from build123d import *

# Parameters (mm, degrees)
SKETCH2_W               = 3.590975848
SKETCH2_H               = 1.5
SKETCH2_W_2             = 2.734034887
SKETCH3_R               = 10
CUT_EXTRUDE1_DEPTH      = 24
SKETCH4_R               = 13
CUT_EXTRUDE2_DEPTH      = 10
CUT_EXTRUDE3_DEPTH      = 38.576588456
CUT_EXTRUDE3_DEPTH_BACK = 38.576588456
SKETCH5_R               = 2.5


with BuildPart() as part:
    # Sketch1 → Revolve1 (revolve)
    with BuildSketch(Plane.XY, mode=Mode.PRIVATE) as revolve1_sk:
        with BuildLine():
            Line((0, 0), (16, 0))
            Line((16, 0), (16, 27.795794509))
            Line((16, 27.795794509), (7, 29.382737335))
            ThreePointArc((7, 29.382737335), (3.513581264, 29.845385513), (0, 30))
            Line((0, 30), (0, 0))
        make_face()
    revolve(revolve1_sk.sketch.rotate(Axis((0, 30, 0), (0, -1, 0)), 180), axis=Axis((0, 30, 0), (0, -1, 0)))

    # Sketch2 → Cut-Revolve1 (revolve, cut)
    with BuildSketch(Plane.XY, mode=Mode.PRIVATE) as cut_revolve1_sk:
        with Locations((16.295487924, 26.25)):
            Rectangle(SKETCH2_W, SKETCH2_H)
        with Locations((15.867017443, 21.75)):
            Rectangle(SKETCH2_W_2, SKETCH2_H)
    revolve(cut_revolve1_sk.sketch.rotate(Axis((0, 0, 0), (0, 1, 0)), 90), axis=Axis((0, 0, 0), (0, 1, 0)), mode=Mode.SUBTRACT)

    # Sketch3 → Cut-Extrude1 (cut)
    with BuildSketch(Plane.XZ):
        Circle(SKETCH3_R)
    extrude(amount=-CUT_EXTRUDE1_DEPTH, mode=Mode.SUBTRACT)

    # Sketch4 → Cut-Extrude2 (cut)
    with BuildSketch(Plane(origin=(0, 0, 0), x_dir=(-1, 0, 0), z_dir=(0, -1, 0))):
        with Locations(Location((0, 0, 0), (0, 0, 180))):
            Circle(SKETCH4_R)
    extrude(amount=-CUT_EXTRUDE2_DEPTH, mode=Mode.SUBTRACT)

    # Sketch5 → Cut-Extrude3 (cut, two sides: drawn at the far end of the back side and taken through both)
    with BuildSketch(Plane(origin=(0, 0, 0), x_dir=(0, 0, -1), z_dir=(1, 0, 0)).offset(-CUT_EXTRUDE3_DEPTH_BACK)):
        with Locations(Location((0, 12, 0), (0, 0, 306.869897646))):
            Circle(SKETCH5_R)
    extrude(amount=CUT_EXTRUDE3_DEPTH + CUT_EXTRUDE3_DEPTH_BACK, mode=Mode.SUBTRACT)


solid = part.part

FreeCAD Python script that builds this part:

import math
import FreeCAD as App
import Part
import Sketcher

V = App.Vector
Q = App.Units.Quantity

doc = App.newDocument("Part")
body = doc.addObject("PartDesign::Body", "Body")

# Sketch on XY plane
sketch1 = doc.addObject("Sketcher::SketchObject", "Sketch")
body.addObject(sketch1)
sketch1.AttachmentSupport = (doc.XY_Plane, [""])
sketch1.MapMode = "FlatFace"
sketch1.addGeometry([
    Part.LineSegment(V(0, 0, 0), V(16, 0, 0)),  # 0
    Part.LineSegment(V(16, 0, 0), V(16, 28, 0)),  # 1
    Part.LineSegment(V(16, 28, 0), V(7, 29, 0)),  # 2
    Part.ArcOfCircle(Part.Circle(V(0, -10, 0), V(0, 0, 1), 40), math.radians(79.92), math.radians(90)),  # 3
    Part.LineSegment(V(0, 30, 0), V(0, 0, 0)),  # 4
], False)
sketch1.addConstraint([
    Sketcher.Constraint("Coincident", 0, 2, 1, 1),
    Sketcher.Constraint("Coincident", 1, 2, 2, 1),
    Sketcher.Constraint("Coincident", 2, 2, 3, 1),
    Sketcher.Constraint("Coincident", 3, 2, 4, 1),
    Sketcher.Constraint("Coincident", 4, 2, 0, 1),
    Sketcher.Constraint("Horizontal", 0),
    Sketcher.Constraint("Vertical", 1),
    Sketcher.Constraint("Vertical", 4),
    Sketcher.Constraint("Coincident", 4, 2, -1, 1),
    Sketcher.Constraint("PointOnObject", 3, 3, -2),
    Sketcher.Constraint("Radius", 3, Q("40 mm")),
    Sketcher.Constraint("DistanceX", 0, 1, 0, 2, Q("16 mm")),
    Sketcher.Constraint("DistanceY", 4, 2, 4, 1, Q("30 mm")),
    Sketcher.Constraint("Angle", 2, Q("170 deg")),
    Sketcher.Constraint("DistanceX", -1, 1, 2, 2, Q("7 mm")),
])
revolution = doc.addObject("PartDesign::Revolution", "Revolution")
body.addObject(revolution)
revolution.Profile = sketch1
revolution.ReferenceAxis = (sketch1, ["V_Axis"])
revolution.Angle = 360

# Sketch on XY plane
sketch2 = doc.addObject("Sketcher::SketchObject", "Sketch001")
body.addObject(sketch2)
sketch2.AttachmentSupport = (doc.XY_Plane, [""])
sketch2.MapMode = "FlatFace"
sketch2.addGeometry([
    Part.LineSegment(V(14.5, 27, 0), V(14.5, 25.5, 0)),  # 0
    Part.LineSegment(V(14.5, 25.5, 0), V(18.1, 25.5, 0)),  # 1
    Part.LineSegment(V(18.1, 25.5, 0), V(18.1, 27, 0)),  # 2
    Part.LineSegment(V(18.1, 27, 0), V(14.5, 27, 0)),  # 3
    Part.LineSegment(V(14.5, 22.5, 0), V(14.5, 21, 0)),  # 4
    Part.LineSegment(V(14.5, 21, 0), V(17.2, 21, 0)),  # 5
    Part.LineSegment(V(17.2, 21, 0), V(17.2, 22.5, 0)),  # 6
    Part.LineSegment(V(17.2, 22.5, 0), V(14.5, 22.5, 0)),  # 7
], False)
sketch2.addConstraint([
    Sketcher.Constraint("Coincident", 0, 2, 1, 1),
    Sketcher.Constraint("Coincident", 1, 2, 2, 1),
    Sketcher.Constraint("Coincident", 2, 2, 3, 1),
    Sketcher.Constraint("Coincident", 3, 2, 0, 1),
    Sketcher.Constraint("Coincident", 4, 2, 5, 1),
    Sketcher.Constraint("Coincident", 5, 2, 6, 1),
    Sketcher.Constraint("Coincident", 6, 2, 7, 1),
    Sketcher.Constraint("Coincident", 7, 2, 4, 1),
    Sketcher.Constraint("Vertical", 0),
    Sketcher.Constraint("Horizontal", 1),
    Sketcher.Constraint("Vertical", 2),
    Sketcher.Constraint("Horizontal", 3),
    Sketcher.Constraint("Vertical", 4),
    Sketcher.Constraint("Horizontal", 5),
    Sketcher.Constraint("Vertical", 6),
    Sketcher.Constraint("Horizontal", 7),
    Sketcher.Constraint("Vertical", 3, 2, 4, 2),
    Sketcher.Constraint("Equal", 2, 4),
    Sketcher.Constraint("DistanceY", 0, 2, 0, 1, Q("1.5 mm")),
    Sketcher.Constraint("DistanceY", -1, 1, 2, 2, Q("27 mm")),
    Sketcher.Constraint("DistanceY", -1, 1, 4, 2, Q("21 mm")),
    Sketcher.Constraint("DistanceX", -1, 1, 0, 2, Q("14.5 mm")),
    Sketcher.Constraint("DistanceX", 1, 1, 1, 2, Q("3.590976 mm")),
    Sketcher.Constraint("DistanceX", 5, 1, 5, 2, Q("2.734035 mm")),
])
groove = doc.addObject("PartDesign::Groove", "Groove")
body.addObject(groove)
groove.Profile = sketch2
groove.ReferenceAxis = (sketch2, ["V_Axis"])
groove.Angle = 360

# Sketch on XZ plane
sketch3 = doc.addObject("Sketcher::SketchObject", "Sketch002")
body.addObject(sketch3)
sketch3.AttachmentSupport = (doc.XZ_Plane, [""])
sketch3.MapMode = "FlatFace"
sketch3.addGeometry(Part.Circle(V(0, 0, 0), V(0, 0, 1), 10), False)
sketch3.addConstraint([
    Sketcher.Constraint("Coincident", 0, 3, -1, 1),
    Sketcher.Constraint("Diameter", 0, Q("20 mm")),
])
pocket1 = doc.addObject("PartDesign::Pocket", "Pocket")
body.addObject(pocket1)
pocket1.Profile = sketch3
pocket1.Length = 24

# Sketch on XZ plane
sketch4 = doc.addObject("Sketcher::SketchObject", "Sketch003")
body.addObject(sketch4)
sketch4.AttachmentSupport = (doc.XZ_Plane, [""])
sketch4.MapMode = "FlatFace"
sketch4.addGeometry(Part.Circle(V(0, 0, 0), V(0, 0, 1), 13), False)
sketch4.addConstraint([
    Sketcher.Constraint("Coincident", 0, 3, -1, 1),
    Sketcher.Constraint("Diameter", 0, Q("26 mm")),
])
pocket2 = doc.addObject("PartDesign::Pocket", "Pocket001")
body.addObject(pocket2)
pocket2.Profile = sketch4
pocket2.Length = 10

# Sketch on YZ plane
sketch5 = doc.addObject("Sketcher::SketchObject", "Sketch004")
body.addObject(sketch5)
sketch5.AttachmentSupport = (doc.YZ_Plane, [""])
sketch5.MapMode = "FlatFace"
sketch5.addGeometry(Part.Circle(V(12, 0, 0), V(0, 0, 1), 2.5), False)
sketch5.addConstraint([
    Sketcher.Constraint("PointOnObject", 0, 3, -1),
    Sketcher.Constraint("Diameter", 0, Q("5 mm")),
    Sketcher.Constraint("DistanceX", -1, 1, 0, 3, Q("12 mm")),
])
pocket3 = doc.addObject("PartDesign::Pocket", "Pocket002")
body.addObject(pocket3)
pocket3.Profile = sketch5
pocket3.Type = "ThroughAll"
pocket3.Midplane = True

doc.recompute()
